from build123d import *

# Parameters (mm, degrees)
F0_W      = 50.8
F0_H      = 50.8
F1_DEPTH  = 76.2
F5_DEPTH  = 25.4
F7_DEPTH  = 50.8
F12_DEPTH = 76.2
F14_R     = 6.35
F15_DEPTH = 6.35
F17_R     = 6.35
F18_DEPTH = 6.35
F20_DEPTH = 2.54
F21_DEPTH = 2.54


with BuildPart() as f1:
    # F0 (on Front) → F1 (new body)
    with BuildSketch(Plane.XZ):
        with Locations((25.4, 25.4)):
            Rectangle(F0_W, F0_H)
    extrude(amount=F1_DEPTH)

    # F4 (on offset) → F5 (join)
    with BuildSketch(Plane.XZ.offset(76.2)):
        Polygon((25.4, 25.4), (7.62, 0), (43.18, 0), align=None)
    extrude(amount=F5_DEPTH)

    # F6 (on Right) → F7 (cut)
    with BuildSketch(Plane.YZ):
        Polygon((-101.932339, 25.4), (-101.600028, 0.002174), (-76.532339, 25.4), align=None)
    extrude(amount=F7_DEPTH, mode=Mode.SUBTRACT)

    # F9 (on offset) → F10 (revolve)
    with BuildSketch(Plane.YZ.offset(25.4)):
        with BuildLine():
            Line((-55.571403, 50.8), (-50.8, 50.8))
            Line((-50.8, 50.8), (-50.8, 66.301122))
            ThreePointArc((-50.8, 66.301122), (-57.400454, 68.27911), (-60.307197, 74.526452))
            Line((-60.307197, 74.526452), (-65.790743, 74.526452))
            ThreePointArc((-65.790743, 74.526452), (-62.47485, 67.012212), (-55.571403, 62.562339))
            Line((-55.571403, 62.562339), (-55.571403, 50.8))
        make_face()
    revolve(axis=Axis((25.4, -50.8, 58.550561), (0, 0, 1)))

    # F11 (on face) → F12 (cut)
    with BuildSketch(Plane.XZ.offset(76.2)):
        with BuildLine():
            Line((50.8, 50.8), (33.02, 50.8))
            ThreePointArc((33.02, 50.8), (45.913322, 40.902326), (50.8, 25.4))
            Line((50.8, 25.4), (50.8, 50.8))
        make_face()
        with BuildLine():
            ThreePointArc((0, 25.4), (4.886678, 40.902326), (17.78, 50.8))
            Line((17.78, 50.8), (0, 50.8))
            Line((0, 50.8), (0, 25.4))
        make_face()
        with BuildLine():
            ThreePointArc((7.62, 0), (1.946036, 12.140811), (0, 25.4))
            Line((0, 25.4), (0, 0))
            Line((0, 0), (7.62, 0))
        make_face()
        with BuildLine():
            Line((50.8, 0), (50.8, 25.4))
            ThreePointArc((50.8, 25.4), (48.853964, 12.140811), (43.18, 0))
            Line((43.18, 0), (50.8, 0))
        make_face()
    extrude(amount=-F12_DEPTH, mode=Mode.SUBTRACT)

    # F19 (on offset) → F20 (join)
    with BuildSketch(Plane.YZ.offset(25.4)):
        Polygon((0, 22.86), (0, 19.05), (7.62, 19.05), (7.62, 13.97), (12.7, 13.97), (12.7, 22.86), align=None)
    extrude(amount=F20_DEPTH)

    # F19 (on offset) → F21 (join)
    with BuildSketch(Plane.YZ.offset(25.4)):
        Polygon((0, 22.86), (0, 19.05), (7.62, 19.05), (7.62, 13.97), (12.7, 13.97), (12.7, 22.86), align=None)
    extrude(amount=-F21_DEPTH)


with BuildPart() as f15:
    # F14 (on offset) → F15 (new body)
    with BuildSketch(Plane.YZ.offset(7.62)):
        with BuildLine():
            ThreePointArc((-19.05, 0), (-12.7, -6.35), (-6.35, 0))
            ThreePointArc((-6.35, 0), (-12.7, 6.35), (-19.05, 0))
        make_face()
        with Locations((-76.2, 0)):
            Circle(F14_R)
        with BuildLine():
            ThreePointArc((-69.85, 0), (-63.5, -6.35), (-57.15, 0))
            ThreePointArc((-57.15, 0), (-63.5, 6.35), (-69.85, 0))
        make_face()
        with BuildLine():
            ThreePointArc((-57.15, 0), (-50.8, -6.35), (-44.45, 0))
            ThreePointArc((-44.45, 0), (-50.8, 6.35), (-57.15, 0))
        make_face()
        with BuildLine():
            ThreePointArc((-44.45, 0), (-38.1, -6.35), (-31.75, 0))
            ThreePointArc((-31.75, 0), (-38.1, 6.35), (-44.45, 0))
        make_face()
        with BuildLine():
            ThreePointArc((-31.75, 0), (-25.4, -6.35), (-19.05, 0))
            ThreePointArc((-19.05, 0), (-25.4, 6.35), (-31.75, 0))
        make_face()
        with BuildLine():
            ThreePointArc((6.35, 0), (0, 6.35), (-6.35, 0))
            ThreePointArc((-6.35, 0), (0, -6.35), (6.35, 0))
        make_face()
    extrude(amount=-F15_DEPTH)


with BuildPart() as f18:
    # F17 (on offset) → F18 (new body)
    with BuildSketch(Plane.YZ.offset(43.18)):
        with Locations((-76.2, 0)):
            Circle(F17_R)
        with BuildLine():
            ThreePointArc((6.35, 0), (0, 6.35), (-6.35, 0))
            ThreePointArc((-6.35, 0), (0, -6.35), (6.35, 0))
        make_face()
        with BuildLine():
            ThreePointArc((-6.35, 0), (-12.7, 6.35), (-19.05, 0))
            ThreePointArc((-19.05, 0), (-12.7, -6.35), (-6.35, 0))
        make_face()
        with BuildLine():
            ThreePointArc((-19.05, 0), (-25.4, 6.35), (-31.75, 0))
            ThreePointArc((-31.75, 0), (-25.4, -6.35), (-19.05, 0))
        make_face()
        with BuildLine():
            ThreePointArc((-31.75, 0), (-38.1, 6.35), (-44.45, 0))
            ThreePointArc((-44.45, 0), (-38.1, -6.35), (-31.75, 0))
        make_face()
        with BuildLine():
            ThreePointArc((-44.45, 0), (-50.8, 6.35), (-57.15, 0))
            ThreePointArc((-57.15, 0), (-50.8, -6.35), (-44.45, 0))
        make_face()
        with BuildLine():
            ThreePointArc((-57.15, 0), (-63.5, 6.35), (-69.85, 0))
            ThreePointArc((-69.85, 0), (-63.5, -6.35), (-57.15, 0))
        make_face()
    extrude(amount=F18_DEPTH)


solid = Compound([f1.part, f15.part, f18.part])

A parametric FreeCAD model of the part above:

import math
import FreeCAD as App
import Part
import Sketcher
from FreeCAD import Vector
Q = App.Units.Quantity


def add_polygon(sketch, points):
    """Adds a closed chain of lines whose ends are joined by coincident constraints."""
    first, n = sketch.GeometryCount, len(points)
    for a, b in zip(points, points[1:] + points[:1]):
        sketch.addGeometry(Part.LineSegment(App.Vector(*a, 0), App.Vector(*b, 0)), False)
    for i in range(n):
        sketch.addConstraint(Sketcher.Constraint("Coincident", first + i, 2, first + (i + 1) % n, 1))

doc = App.newDocument("Part")
body = doc.addObject("PartDesign::Body", "Body")

# Sketch on XZ plane
sketch1 = doc.addObject("Sketcher::SketchObject", "Sketch")
body.addObject(sketch1)
sketch1.AttachmentSupport = (doc.XZ_Plane, [""])
sketch1.MapMode = "FlatFace"
add_polygon(sketch1, [(0, 51), (0, 0), (51, 0), (51, 51)])  # lines 0-3
sketch1.addConstraint([
    Sketcher.Constraint("Vertical", 0),
    Sketcher.Constraint("Horizontal", 1),
    Sketcher.Constraint("Vertical", 2),
    Sketcher.Constraint("Horizontal", 3),
    Sketcher.Constraint("Coincident", 0, 2, -1, 1),
    Sketcher.Constraint("Equal", 3, 0),
    Sketcher.Constraint("DistanceX", 1, 1, 1, 2, Q("2 in")),
])
pad1 = doc.addObject("PartDesign::Pad", "Pad")
body.addObject(pad1)
pad1.Profile = sketch1
pad1.Length = Q("3 in")

# Sketch on XZ plane
sketch2 = doc.addObject("Sketcher::SketchObject", "Sketch001")
body.addObject(sketch2)
sketch2.AttachmentSupport = (doc.XZ_Plane, [""])
sketch2.MapMode = "FlatFace"
sketch2.AttachmentOffset = App.Placement(Vector(0, 0, 3 * 25.4), App.Rotation())
add_polygon(sketch2, [(25, 25), (8, 0), (43, 0)])  # lines 0-2
sketch2.addConstraint([
    Sketcher.Constraint("Horizontal", 1),
    Sketcher.Constraint("PointOnObject", 0, 2, -1),
    Sketcher.Constraint("Equal", 0, 2),
    Sketcher.Constraint("DistanceX", 1, 1, 1, 2, Q("1.4 in")),
    Sketcher.Constraint("DistanceX", -1, 1, 2, 2, Q("1 in")),
    Sketcher.Constraint("DistanceY", -1, 1, 2, 2, Q("1 in")),
])
pad2 = doc.addObject("PartDesign::Pad", "Pad001")
body.addObject(pad2)
pad2.Profile = sketch2
pad2.Length = Q("1 in")

# Sketch on YZ plane
sketch3 = doc.addObject("Sketcher::SketchObject", "Sketch002")
body.addObject(sketch3)
sketch3.AttachmentSupport = (doc.YZ_Plane, [""])
sketch3.MapMode = "FlatFace"
add_polygon(sketch3, [(-102, 25), (-102, 0), (-77, 25)])  # lines 0-2
sketch3.addConstraint([
    Sketcher.Constraint("Horizontal", 2),
    Sketcher.Constraint("DistanceX", 2, 2, 2, 1, Q("1 in")),
    Sketcher.Constraint("Distance", 0, Q("1 in")),
    Sketcher.Constraint("DistanceY", -1, 1, 1, 2, Q("1 in")),
    Sketcher.Constraint("Distance", 1, 35.685271),
    Sketcher.Constraint("DistanceX", 1, 2, -1, 1, 76.532339),
])
pocket1 = doc.addObject("PartDesign::Pocket", "Pocket")
body.addObject(pocket1)
pocket1.Profile = sketch3
pocket1.Length = Q("2 in")
pocket1.Reversed = True

# Sketch on YZ plane
sketch4 = doc.addObject("Sketcher::SketchObject", "Sketch003")
body.addObject(sketch4)
sketch4.AttachmentSupport = (doc.YZ_Plane, [""])
sketch4.MapMode = "FlatFace"
sketch4.AttachmentOffset = App.Placement(Vector(0, 0, 1 * 25.4), App.Rotation())
sketch4.addGeometry([
    Part.LineSegment(Vector(-55.6, 50.8, 0), Vector(-50.8, 50.8, 0)),  # 0
    Part.LineSegment(Vector(-50.8, 50.8, 0), Vector(-50.8, 66.3, 0)),  # 1
    Part.ArcOfCircle(Part.Circle(Vector(-51.9, 74.6, 0), Vector(0, 0, 1), 8.4), math.radians(-179), math.radians(-82)),  # 2
    Part.LineSegment(Vector(-60.3, 74.5, 0), Vector(-65.8, 74.5, 0)),  # 3
    Part.ArcOfCircle(Part.Circle(Vector(-51.6, 76.3, 0), Vector(0, 0, 1), 14.3), math.radians(-173), math.radians(-106)),  # 4
    Part.LineSegment(Vector(-55.6, 62.6, 0), Vector(-55.6, 50.8, 0)),  # 5
], False)
sketch4.addGeometry(Part.LineSegment(Vector(-50.8, 50.8, 0), Vector(-50.8, 76.3, 0)), True)  # axis
sketch4.addConstraint([
    Sketcher.Constraint("Coincident", 0, 2, 1, 1),
    Sketcher.Constraint("Coincident", 1, 2, 2, 2),
    Sketcher.Constraint("Coincident", 2, 1, 3, 1),
    Sketcher.Constraint("Coincident", 3, 2, 4, 1),
    Sketcher.Constraint("Coincident", 4, 2, 5, 1),
    Sketcher.Constraint("Coincident", 5, 2, 0, 1),
    Sketcher.Constraint("Horizontal", 0),
    Sketcher.Constraint("Vertical", 1),
    Sketcher.Constraint("Horizontal", 3),
    Sketcher.Constraint("Vertical", 5),
    Sketcher.Constraint("Vertical", 6),
    Sketcher.Constraint("Coincident", 6, 1, 0, 2),
    Sketcher.Constraint("Horizontal", 4, 3, 6, 2),
    Sketcher.Constraint("DistanceX", 0, 2, -1, 1, Q("2 in")),
    Sketcher.Constraint("DistanceY", -1, 1, 0, 2, Q("2 in")),
    Sketcher.Constraint("Radius", 4, 14.297771),
    Sketcher.Constraint("Radius", 2, 8.410064),
    Sketcher.Constraint("DistanceY", 5, 2, 5, 1, 11.762339),
    Sketcher.Constraint("DistanceY", 6, 1, 6, 2, 25.498408),
    Sketcher.Constraint("DistanceX", 4, 3, -1, 1, 51.603199),
    Sketcher.Constraint("DistanceX", 2, 1, 4, 3, 8.703998),
    Sketcher.Constraint("DistanceX", 3, 2, 3, 1, 5.483546),
    Sketcher.Constraint("DistanceY", 1, 1, 1, 2, 15.501122),
])
revolution = doc.addObject("PartDesign::Revolution", "Revolution")
body.addObject(revolution)
revolution.Profile = sketch4
revolution.ReferenceAxis = (sketch4, ["Axis0"])
revolution.Angle = 360

# Sketch on XZ plane
sketch5 = doc.addObject("Sketcher::SketchObject", "Sketch004")
body.addObject(sketch5)
sketch5.AttachmentSupport = (doc.XZ_Plane, [""])
sketch5.MapMode = "FlatFace"
sketch5.AttachmentOffset = App.Placement(Vector(0, 0, 3 * 25.4), App.Rotation())
sketch5.addGeometry([
    Part.LineSegment(Vector(51, 51, 0), Vector(33, 51, 0)),  # 0
    Part.ArcOfCircle(Part.Circle(Vector(24, 25, 0), Vector(0, 0, 1), 27), math.radians(0), math.radians(70)),  # 1
    Part.LineSegment(Vector(51, 25, 0), Vector(51, 51, 0)),  # 2
    Part.ArcOfCircle(Part.Circle(Vector(27, 25, 0), Vector(0, 0, 1), 27), math.radians(110), math.radians(180)),  # 3
    Part.LineSegment(Vector(18, 51, 0), Vector(0, 51, 0)),  # 4
    Part.LineSegment(Vector(0, 51, 0), Vector(0, 25, 0)),  # 5
    Part.ArcOfCircle(Part.Circle(Vector(46, 25, 0), Vector(0, 0, 1), 46), math.radians(-180), math.radians(-147)),  # 6
    Part.LineSegment(Vector(0, 25, 0), Vector(0, 0, 0)),  # 7
    Part.LineSegment(Vector(0, 0, 0), Vector(8, 0, 0)),  # 8
    Part.LineSegment(Vector(51, 0, 0), Vector(51, 25, 0)),  # 9
    Part.ArcOfCircle(Part.Circle(Vector(5, 25, 0), Vector(0, 0, 1), 46), math.radians(-33), math.radians(0)),  # 10
    Part.LineSegment(Vector(43, 0, 0), Vector(51, 0, 0)),  # 11
], False)
sketch5.addConstraint([
    Sketcher.Constraint("Coincident", 0, 2, 1, 2),
    Sketcher.Constraint("Tangent", 1, 1, 2, 1),
    Sketcher.Constraint("Coincident", 2, 2, 0, 1),
    Sketcher.Constraint("Coincident", 3, 1, 4, 1),
    Sketcher.Constraint("Coincident", 4, 2, 5, 1),
    Sketcher.Constraint("Tangent", 5, 2, 3, 2),
    Sketcher.Constraint("Tangent", 6, 1, 7, 1),
    Sketcher.Constraint("Coincident", 7, 2, 8, 1),
    Sketcher.Constraint("Coincident", 8, 2, 6, 2),
    Sketcher.Constraint("Tangent", 9, 2, 10, 2),
    Sketcher.Constraint("Coincident", 10, 1, 11, 1),
    Sketcher.Constraint("Coincident", 11, 2, 9, 1),
    Sketcher.Constraint("Horizontal", 0),
    Sketcher.Constraint("Vertical", 2),
    Sketcher.Constraint("Horizontal", 4),
    Sketcher.Constraint("Vertical", 5),
    Sketcher.Constraint("Vertical", 7),
    Sketcher.Constraint("Horizontal", 8),
    Sketcher.Constraint("Vertical", 9),
    Sketcher.Constraint("Horizontal", 11),
    Sketcher.Constraint("Coincident", 7, 2, -1, 1),
    Sketcher.Constraint("Coincident", 6, 1, 5, 2),
    Sketcher.Constraint("Coincident", 9, 2, 1, 1),
    Sketcher.Constraint("Equal", 1, 3),
    Sketcher.Constraint("Equal", 6, 10),
    Sketcher.Constraint("PointOnObject", 10, 1, -1),
    Sketcher.Constraint("Horizontal", 1, 3, 3, 3),
    Sketcher.Constraint("Horizontal", 2, 2, 3, 1),
    Sketcher.Constraint("Equal", 5, 7),
    Sketcher.Constraint("DistanceY", 2, 1, 2, 2, Q("1 in")),
    Sketcher.Constraint("DistanceX", 0, 2, 0, 1, Q("0.7 in")),
    Sketcher.Constraint("DistanceX", 8, 1, 8, 2, Q("0.3 in")),
    Sketcher.Constraint("DistanceX", -1, 1, 1, 1, Q("2 in")),
])
pocket2 = doc.addObject("PartDesign::Pocket", "Pocket001")
body.addObject(pocket2)
pocket2.Profile = sketch5
pocket2.Length = Q("3 in")

# Sketch on YZ plane
sketch6 = doc.addObject("Sketcher::SketchObject", "Sketch005")
body.addObject(sketch6)
sketch6.AttachmentSupport = (doc.YZ_Plane, [""])
sketch6.MapMode = "FlatFace"
sketch6.AttachmentOffset = App.Placement(Vector(0, 0, 1 * 25.4), App.Rotation())
add_polygon(sketch6, [(0, 22.9), (0, 19.1), (7.6, 19.1), (7.6, 14), (12.7, 14), (12.7, 22.9)])  # lines 0-5
sketch6.addConstraint([
    Sketcher.Constraint("Vertical", 0),
    Sketcher.Constraint("Horizontal", 1),
    Sketcher.Constraint("Vertical", 2),
    Sketcher.Constraint("Horizontal", 3),
    Sketcher.Constraint("Vertical", 4),
    Sketcher.Constraint("Horizontal", 5),
    Sketcher.Constraint("PointOnObject", 0, 2, -2),
    Sketcher.Constraint("Equal", 3, 2),
    Sketcher.Constraint("DistanceX", 1, 1, 1, 2, Q("0.3 in")),
    Sketcher.Constraint("DistanceX", 3, 1, 3, 2, Q("0.2 in")),
    Sketcher.Constraint("DistanceY", 0, 2, 0, 1, Q("0.15 in")),
    Sketcher.Constraint("DistanceY", -1, 1, 4, 2, Q("0.9 in")),
])
pad3 = doc.addObject("PartDesign::Pad", "Pad002")
body.addObject(pad3)
pad3.Profile = sketch6
pad3.Length = Q("0.1 in")

# Sketch on YZ plane
sketch7 = doc.addObject("Sketcher::SketchObject", "Sketch006")
body.addObject(sketch7)
sketch7.AttachmentSupport = (doc.YZ_Plane, [""])
sketch7.MapMode = "FlatFace"
sketch7.AttachmentOffset = App.Placement(Vector(0, 0, 1 * 25.4), App.Rotation())
add_polygon(sketch7, [(0, 22.9), (0, 19.1), (7.6, 19.1), (7.6, 14), (12.7, 14), (12.7, 22.9)])  # lines 0-5
sketch7.addConstraint([
    Sketcher.Constraint("Vertical", 0),
    Sketcher.Constraint("Horizontal", 1),
    Sketcher.Constraint("Vertical", 2),
    Sketcher.Constraint("Horizontal", 3),
    Sketcher.Constraint("Vertical", 4),
    Sketcher.Constraint("Horizontal", 5),
    Sketcher.Constraint("PointOnObject", 0, 2, -2),
    Sketcher.Constraint("Equal", 3, 2),
    Sketcher.Constraint("DistanceX", 1, 1, 1, 2, Q("0.3 in")),
    Sketcher.Constraint("DistanceX", 3, 1, 3, 2, Q("0.2 in")),
    Sketcher.Constraint("DistanceY", 0, 2, 0, 1, Q("0.15 in")),
    Sketcher.Constraint("DistanceY", -1, 1, 4, 2, Q("0.9 in")),
])
pad4 = doc.addObject("PartDesign::Pad", "Pad003")
body.addObject(pad4)
pad4.Profile = sketch7
pad4.Length = Q("0.1 in")
pad4.Reversed = True
body2 = doc.addObject("PartDesign::Body", "Body001")
body2.AllowCompound = True

# Sketch on YZ plane
sketch8 = doc.addObject("Sketcher::SketchObject", "Sketch007")
body2.addObject(sketch8)
sketch8.AttachmentSupport = (doc.getObject("YZ_Plane001"), [""])
sketch8.MapMode = "FlatFace"
sketch8.AttachmentOffset = App.Placement(Vector(0, 0, 0.3 * 25.4), App.Rotation())
sketch8.addGeometry([
    Part.ArcOfCircle(Part.Circle(Vector(-13, 0, 0), Vector(0, 0, 1), 6), math.radians(180), math.radians(360)),  # 0
    Part.ArcOfCircle(Part.Circle(Vector(-13, 0, 0), Vector(0, 0, 1), 6), math.radians(0), math.radians(180)),  # 1
    Part.Circle(Vector(-76, 0, 0), Vector(0, 0, 1), 6),  # 2
    Part.ArcOfCircle(Part.Circle(Vector(-64, 0, 0), Vector(0, 0, 1), 6), math.radians(180), math.radians(360)),  # 3
    Part.ArcOfCircle(Part.Circle(Vector(-64, 0, 0), Vector(0, 0, 1), 6), math.radians(0), math.radians(180)),  # 4
    Part.ArcOfCircle(Part.Circle(Vector(-51, 0, 0), Vector(0, 0, 1), 6), math.radians(-180), math.radians(0)),  # 5
    Part.ArcOfCircle(Part.Circle(Vector(-51, 0, 0), Vector(0, 0, 1), 6), math.radians(0), math.radians(180)),  # 6
    Part.ArcOfCircle(Part.Circle(Vector(-38, 0, 0), Vector(0, 0, 1), 6), math.radians(180), math.radians(360)),  # 7
    Part.ArcOfCircle(Part.Circle(Vector(-38, 0, 0), Vector(0, 0, 1), 6), math.radians(0), math.radians(180)),  # 8
    Part.ArcOfCircle(Part.Circle(Vector(-25, 0, 0), Vector(0, 0, 1), 6), math.radians(0), math.radians(180)),  # 9
    Part.ArcOfCircle(Part.Circle(Vector(-25, 0, 0), Vector(0, 0, 1), 6), math.radians(180), math.radians(360)),  # 10
    Part.Circle(Vector(0, 0, 0), Vector(0, 0, 1), 6),  # 11
], False)
sketch8.addConstraint([
    Sketcher.Constraint("Tangent", 0, 1, 1, 2),
    Sketcher.Constraint("Coincident", 1, 1, 0, 2),
    Sketcher.Constraint("Tangent", 3, 1, 4, 2),
    Sketcher.Constraint("Coincident", 4, 1, 3, 2),
    Sketcher.Constraint("Tangent", 5, 1, 6, 2),
    Sketcher.Constraint("Coincident", 6, 1, 5, 2),
    Sketcher.Constraint("Tangent", 7, 1, 8, 2),
    Sketcher.Constraint("Coincident", 8, 1, 7, 2),
    Sketcher.Constraint("Tangent", 9, 1, 10, 2),
    Sketcher.Constraint("Coincident", 10, 1, 9, 2),
    Sketcher.Constraint("Coincident", 11, 3, -1, 1),
    Sketcher.Constraint("Coincident", 5, 1, 4, 1),
    Sketcher.Constraint("Coincident", 7, 1, 6, 1),
    Sketcher.Constraint("Coincident", 9, 1, 0, 1),
    Sketcher.Constraint("Coincident", 10, 1, 8, 1),
    Sketcher.Constraint("Equal", 1, 2),
    Sketcher.Constraint("Equal", 2, 3),
    Sketcher.Constraint("Equal", 4, 5),
    Sketcher.Constraint("Equal", 6, 7),
    Sketcher.Constraint("Equal", 8, 9),
    Sketcher.Constraint("Equal", 10, 11),
    Sketcher.Constraint("PointOnObject", 0, 3, -1),
    Sketcher.Constraint("PointOnObject", 2, 3, -1),
    Sketcher.Constraint("PointOnObject", 3, 3, -1),
    Sketcher.Constraint("PointOnObject", 5, 3, -1),
    Sketcher.Constraint("PointOnObject", 7, 3, -1),
    Sketcher.Constraint("PointOnObject", 9, 3, -1),
    Sketcher.Constraint("PointOnObject", 0, 1, -1),
    Sketcher.Constraint("PointOnObject", 1, 1, -1),
    Sketcher.Constraint("PointOnObject", 3, 1, -1),
    Sketcher.Constraint("PointOnObject", 4, 1, -1),
    Sketcher.Constraint("PointOnObject", 6, 1, -1),
    Sketcher.Constraint("PointOnObject", 8, 1, -1),
    Sketcher.Constraint("Diameter", 2, Q("0.5 in")),
    Sketcher.Constraint("DistanceX", 2, 3, -1, 1, Q("3 in")),
    Sketcher.Constraint("DistanceX", 5, 3, -1, 1, Q("2 in")),
])
pad5 = doc.addObject("PartDesign::Pad", "Pad004")
body2.addObject(pad5)
pad5.Profile = sketch8
pad5.Length = Q("0.25 in")
pad5.Reversed = True
body3 = doc.addObject("PartDesign::Body", "Body002")
body3.AllowCompound = True

# Sketch on YZ plane
sketch9 = doc.addObject("Sketcher::SketchObject", "Sketch008")
body3.addObject(sketch9)
sketch9.AttachmentSupport = (doc.getObject("YZ_Plane002"), [""])
sketch9.MapMode = "FlatFace"
sketch9.AttachmentOffset = App.Placement(Vector(0, 0, 1.7 * 25.4), App.Rotation())
sketch9.addGeometry([
    Part.Circle(Vector(-76, 0, 0), Vector(0, 0, 1), 6),  # 0
    Part.Circle(Vector(0, 0, 0), Vector(0, 0, 1), 6),  # 1
    Part.ArcOfCircle(Part.Circle(Vector(-13, 0, 0), Vector(0, 0, 1), 6), math.radians(0), math.radians(180)),  # 2
    Part.ArcOfCircle(Part.Circle(Vector(-13, 0, 0), Vector(0, 0, 1), 6), math.radians(-180), math.radians(0)),  # 3
    Part.ArcOfCircle(Part.Circle(Vector(-25, 0, 0), Vector(0, 0, 1), 6), math.radians(0), math.radians(180)),  # 4
    Part.ArcOfCircle(Part.Circle(Vector(-25, 0, 0), Vector(0, 0, 1), 6), math.radians(180), math.radians(360)),  # 5
    Part.ArcOfCircle(Part.Circle(Vector(-38, 0, 0), Vector(0, 0, 1), 6), math.radians(0), math.radians(180)),  # 6
    Part.ArcOfCircle(Part.Circle(Vector(-38, 0, 0), Vector(0, 0, 1), 6), math.radians(-180), math.radians(0)),  # 7
    Part.ArcOfCircle(Part.Circle(Vector(-51, 0, 0), Vector(0, 0, 1), 6), math.radians(0), math.radians(180)),  # 8
    Part.ArcOfCircle(Part.Circle(Vector(-51, 0, 0), Vector(0, 0, 1), 6), math.radians(180), math.radians(360)),  # 9
    Part.ArcOfCircle(Part.Circle(Vector(-64, 0, 0), Vector(0, 0, 1), 6), math.radians(180), math.radians(360)),  # 10
    Part.ArcOfCircle(Part.Circle(Vector(-64, 0, 0), Vector(0, 0, 1), 6), math.radians(0), math.radians(180)),  # 11
], False)
sketch9.addConstraint([
    Sketcher.Constraint("Tangent", 2, 1, 3, 2),
    Sketcher.Constraint("Coincident", 3, 1, 2, 2),
    Sketcher.Constraint("Tangent", 4, 1, 5, 2),
    Sketcher.Constraint("Coincident", 5, 1, 4, 2),
    Sketcher.Constraint("Tangent", 6, 1, 7, 2),
    Sketcher.Constraint("Coincident", 7, 1, 6, 2),
    Sketcher.Constraint("Tangent", 8, 1, 9, 2),
    Sketcher.Constraint("Coincident", 9, 1, 8, 2),
    Sketcher.Constraint("Tangent", 10, 1, 11, 2),
    Sketcher.Constraint("Coincident", 11, 1, 10, 2),
    Sketcher.Constraint("Coincident", 1, 3, -1, 1),
    Sketcher.Constraint("Coincident", 4, 1, 3, 1),
    Sketcher.Constraint("Coincident", 6, 1, 5, 1),
    Sketcher.Constraint("Coincident", 8, 1, 7, 1),
    Sketcher.Constraint("Coincident", 11, 1, 9, 1),
    Sketcher.Constraint("Equal", 0, 1),
    Sketcher.Constraint("Equal", 1, 2),
    Sketcher.Constraint("Equal", 3, 4),
    Sketcher.Constraint("Equal", 5, 6),
    Sketcher.Constraint("Equal", 7, 8),
    Sketcher.Constraint("Equal", 9, 10),
    Sketcher.Constraint("PointOnObject", 0, 3, -1),
    Sketcher.Constraint("PointOnObject", 2, 3, -1),
    Sketcher.Constraint("PointOnObject", 4, 3, -1),
    Sketcher.Constraint("PointOnObject", 6, 3, -1),
    Sketcher.Constraint("PointOnObject", 8, 3, -1),
    Sketcher.Constraint("PointOnObject", 10, 3, -1),
    Sketcher.Constraint("PointOnObject", 2, 1, -1),
    Sketcher.Constraint("PointOnObject", 3, 1, -1),
    Sketcher.Constraint("PointOnObject", 5, 1, -1),
    Sketcher.Constraint("PointOnObject", 7, 1, -1),
    Sketcher.Constraint("PointOnObject", 9, 1, -1),
    Sketcher.Constraint("PointOnObject", 10, 1, -1),
    Sketcher.Constraint("Diameter", 0, Q("0.5 in")),
    Sketcher.Constraint("DistanceX", 0, 3, -1, 1, Q("3 in")),
    Sketcher.Constraint("DistanceX", 4, 3, -1, 1, Q("1 in")),
])
pad6 = doc.addObject("PartDesign::Pad", "Pad005")
body3.addObject(pad6)
pad6.Profile = sketch9
pad6.Length = Q("0.25 in")

doc.recompute()
